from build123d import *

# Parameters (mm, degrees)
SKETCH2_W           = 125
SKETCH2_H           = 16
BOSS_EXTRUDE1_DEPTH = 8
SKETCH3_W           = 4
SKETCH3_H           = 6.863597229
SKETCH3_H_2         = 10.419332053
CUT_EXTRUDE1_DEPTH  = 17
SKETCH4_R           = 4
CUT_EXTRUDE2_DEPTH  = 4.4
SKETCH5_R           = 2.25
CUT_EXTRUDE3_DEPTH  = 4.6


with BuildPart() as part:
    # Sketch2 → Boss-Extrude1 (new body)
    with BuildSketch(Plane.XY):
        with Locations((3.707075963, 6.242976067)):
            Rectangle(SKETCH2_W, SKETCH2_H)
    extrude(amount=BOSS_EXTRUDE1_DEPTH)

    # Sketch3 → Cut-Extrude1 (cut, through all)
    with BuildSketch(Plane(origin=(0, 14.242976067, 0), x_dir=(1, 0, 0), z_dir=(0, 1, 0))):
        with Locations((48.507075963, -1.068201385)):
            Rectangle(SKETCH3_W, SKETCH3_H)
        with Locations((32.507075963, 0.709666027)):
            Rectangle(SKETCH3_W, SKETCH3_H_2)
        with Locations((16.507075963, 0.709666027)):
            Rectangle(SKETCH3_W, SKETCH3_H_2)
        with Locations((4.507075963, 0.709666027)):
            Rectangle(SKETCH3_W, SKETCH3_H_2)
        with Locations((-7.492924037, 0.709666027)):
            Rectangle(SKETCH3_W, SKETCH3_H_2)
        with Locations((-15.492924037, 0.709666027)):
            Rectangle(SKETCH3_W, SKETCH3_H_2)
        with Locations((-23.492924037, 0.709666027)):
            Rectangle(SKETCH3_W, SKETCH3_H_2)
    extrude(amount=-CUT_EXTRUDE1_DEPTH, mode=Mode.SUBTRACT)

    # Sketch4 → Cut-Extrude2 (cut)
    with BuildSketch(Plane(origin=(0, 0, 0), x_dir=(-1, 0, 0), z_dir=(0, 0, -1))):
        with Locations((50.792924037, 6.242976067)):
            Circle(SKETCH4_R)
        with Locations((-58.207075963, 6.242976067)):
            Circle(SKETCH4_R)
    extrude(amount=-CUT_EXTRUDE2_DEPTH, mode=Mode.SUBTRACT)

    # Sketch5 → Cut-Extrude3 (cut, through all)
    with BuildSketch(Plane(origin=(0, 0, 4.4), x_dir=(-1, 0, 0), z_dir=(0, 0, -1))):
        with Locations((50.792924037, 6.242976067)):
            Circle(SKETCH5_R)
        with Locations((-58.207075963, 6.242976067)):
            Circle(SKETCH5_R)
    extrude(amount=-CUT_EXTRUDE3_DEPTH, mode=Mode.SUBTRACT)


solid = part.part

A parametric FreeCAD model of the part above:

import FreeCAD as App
import Part
import Sketcher
from FreeCAD import Vector

doc = App.newDocument("Part")
body = doc.addObject("PartDesign::Body", "Body")

# Sketch on XY plane
sketch1 = body.newObject("Sketcher::SketchObject", "Sketch")
sketch1.AttachmentSupport = (doc.getObject("XY_Plane"), [""])
sketch1.MapMode = "FlatFace"
sketch1.addGeometry([
    Part.LineSegment(Vector(-59, 14, 0), Vector(-59, -2, 0)),
    Part.LineSegment(Vector(-59, -2, 0), Vector(66, -2, 0)),
    Part.LineSegment(Vector(66, -2, 0), Vector(66, 14, 0)),
    Part.LineSegment(Vector(66, 14, 0), Vector(-59, 14, 0)),
], False)
sketch1.addConstraint([
    Sketcher.Constraint("Coincident", 0, 2, 1, 1),
    Sketcher.Constraint("Coincident", 1, 2, 2, 1),
    Sketcher.Constraint("Coincident", 2, 2, 3, 1),
    Sketcher.Constraint("Coincident", 3, 2, 0, 1),
    Sketcher.Constraint("Vertical", 0),
    Sketcher.Constraint("Horizontal", 1),
    Sketcher.Constraint("Vertical", 2),
    Sketcher.Constraint("Horizontal", 3),
    Sketcher.Constraint("DistanceX", 1, 1, 1, 2, 125.0),
    Sketcher.Constraint("DistanceY", 0, 2, 0, 1, 16.0),
    Sketcher.Constraint("DistanceX", 0, 2, -1, 1, 58.792924),
    Sketcher.Constraint("DistanceY", 0, 2, -1, 1, 1.757024),
])
pad1 = body.newObject("PartDesign::Pad", "Pad")
pad1.Profile = sketch1
pad1.Length = 8

# Sketch on XZ plane
sketch2 = body.newObject("Sketcher::SketchObject", "Sketch001")
sketch2.AttachmentSupport = (doc.getObject("XZ_Plane"), [""])
sketch2.MapMode = "FlatFace"
sketch2.AttachmentOffset = App.Placement(Vector(0, 0, -14.242976), App.Rotation())
sketch2.addGeometry([
    Part.LineSegment(Vector(46.5, -2.4, 0), Vector(46.5, 4.5, 0)),  # 0
    Part.LineSegment(Vector(46.5, 4.5, 0), Vector(50.5, 4.5, 0)),  # 1
    Part.LineSegment(Vector(50.5, 4.5, 0), Vector(50.5, -2.4, 0)),  # 2
    Part.LineSegment(Vector(50.5, -2.4, 0), Vector(46.5, -2.4, 0)),  # 3
    Part.LineSegment(Vector(30.5, -5.9, 0), Vector(30.5, 4.5, 0)),  # 4
    Part.LineSegment(Vector(30.5, 4.5, 0), Vector(34.5, 4.5, 0)),  # 5
    Part.LineSegment(Vector(34.5, 4.5, 0), Vector(34.5, -5.9, 0)),  # 6
    Part.LineSegment(Vector(34.5, -5.9, 0), Vector(30.5, -5.9, 0)),  # 7
    Part.LineSegment(Vector(14.5, -5.9, 0), Vector(14.5, 4.5, 0)),  # 8
    Part.LineSegment(Vector(14.5, 4.5, 0), Vector(18.5, 4.5, 0)),  # 9
    Part.LineSegment(Vector(18.5, 4.5, 0), Vector(18.5, -5.9, 0)),  # 10
    Part.LineSegment(Vector(18.5, -5.9, 0), Vector(14.5, -5.9, 0)),  # 11
    Part.LineSegment(Vector(2.5, -5.9, 0), Vector(2.5, 4.5, 0)),  # 12
    Part.LineSegment(Vector(2.5, 4.5, 0), Vector(6.5, 4.5, 0)),  # 13
    Part.LineSegment(Vector(6.5, 4.5, 0), Vector(6.5, -5.9, 0)),  # 14
    Part.LineSegment(Vector(6.5, -5.9, 0), Vector(2.5, -5.9, 0)),  # 15
    Part.LineSegment(Vector(-9.5, -5.9, 0), Vector(-9.5, 4.5, 0)),  # 16
    Part.LineSegment(Vector(-9.5, 4.5, 0), Vector(-5.5, 4.5, 0)),  # 17
    Part.LineSegment(Vector(-5.5, 4.5, 0), Vector(-5.5, -5.9, 0)),  # 18
    Part.LineSegment(Vector(-5.5, -5.9, 0), Vector(-9.5, -5.9, 0)),  # 19
    Part.LineSegment(Vector(-17.5, -5.9, 0), Vector(-17.5, 4.5, 0)),  # 20
    Part.LineSegment(Vector(-17.5, 4.5, 0), Vector(-13.5, 4.5, 0)),  # 21
    Part.LineSegment(Vector(-13.5, 4.5, 0), Vector(-13.5, -5.9, 0)),  # 22
    Part.LineSegment(Vector(-13.5, -5.9, 0), Vector(-17.5, -5.9, 0)),  # 23
    Part.LineSegment(Vector(-25.5, -5.9, 0), Vector(-25.5, 4.5, 0)),  # 24
    Part.LineSegment(Vector(-25.5, 4.5, 0), Vector(-21.5, 4.5, 0)),  # 25
    Part.LineSegment(Vector(-21.5, 4.5, 0), Vector(-21.5, -5.9, 0)),  # 26
    Part.LineSegment(Vector(-21.5, -5.9, 0), Vector(-25.5, -5.9, 0)),  # 27
], False)
sketch2.addConstraint([
    Sketcher.Constraint("Coincident", 0, 2, 1, 1),
    Sketcher.Constraint("Coincident", 1, 2, 2, 1),
    Sketcher.Constraint("Coincident", 2, 2, 3, 1),
    Sketcher.Constraint("Coincident", 3, 2, 0, 1),
    Sketcher.Constraint("Coincident", 4, 2, 5, 1),
    Sketcher.Constraint("Coincident", 5, 2, 6, 1),
    Sketcher.Constraint("Coincident", 6, 2, 7, 1),
    Sketcher.Constraint("Coincident", 7, 2, 4, 1),
    Sketcher.Constraint("Coincident", 8, 2, 9, 1),
    Sketcher.Constraint("Coincident", 9, 2, 10, 1),
    Sketcher.Constraint("Coincident", 10, 2, 11, 1),
    Sketcher.Constraint("Coincident", 11, 2, 8, 1),
    Sketcher.Constraint("Coincident", 12, 2, 13, 1),
    Sketcher.Constraint("Coincident", 13, 2, 14, 1),
    Sketcher.Constraint("Coincident", 14, 2, 15, 1),
    Sketcher.Constraint("Coincident", 15, 2, 12, 1),
    Sketcher.Constraint("Coincident", 16, 2, 17, 1),
    Sketcher.Constraint("Coincident", 17, 2, 18, 1),
    Sketcher.Constraint("Coincident", 18, 2, 19, 1),
    Sketcher.Constraint("Coincident", 19, 2, 16, 1),
    Sketcher.Constraint("Coincident", 20, 2, 21, 1),
    Sketcher.Constraint("Coincident", 21, 2, 22, 1),
    Sketcher.Constraint("Coincident", 22, 2, 23, 1),
    Sketcher.Constraint("Coincident", 23, 2, 20, 1),
    Sketcher.Constraint("Coincident", 24, 2, 25, 1),
    Sketcher.Constraint("Coincident", 25, 2, 26, 1),
    Sketcher.Constraint("Coincident", 26, 2, 27, 1),
    Sketcher.Constraint("Coincident", 27, 2, 24, 1),
    Sketcher.Constraint("Vertical", 0),
    Sketcher.Constraint("Horizontal", 1),
    Sketcher.Constraint("Vertical", 2),
    Sketcher.Constraint("Horizontal", 3),
    Sketcher.Constraint("Vertical", 4),
    Sketcher.Constraint("Horizontal", 5),
    Sketcher.Constraint("Vertical", 6),
    Sketcher.Constraint("Horizontal", 7),
    Sketcher.Constraint("Vertical", 8),
    Sketcher.Constraint("Horizontal", 9),
    Sketcher.Constraint("Vertical", 10),
    Sketcher.Constraint("Horizontal", 11),
    Sketcher.Constraint("Vertical", 12),
    Sketcher.Constraint("Horizontal", 13),
    Sketcher.Constraint("Vertical", 14),
    Sketcher.Constraint("Horizontal", 15),
    Sketcher.Constraint("Vertical", 16),
    Sketcher.Constraint("Horizontal", 17),
    Sketcher.Constraint("Vertical", 18),
    Sketcher.Constraint("Horizontal", 19),
    Sketcher.Constraint("Vertical", 20),
    Sketcher.Constraint("Horizontal", 21),
    Sketcher.Constraint("Vertical", 22),
    Sketcher.Constraint("Horizontal", 23),
    Sketcher.Constraint("Vertical", 24),
    Sketcher.Constraint("Horizontal", 25),
    Sketcher.Constraint("Vertical", 26),
    Sketcher.Constraint("Horizontal", 27),
    Sketcher.Constraint("Horizontal", 1, 2, 4, 2),
    Sketcher.Constraint("Horizontal", 5, 2, 8, 2),
    Sketcher.Constraint("Horizontal", 7, 2, 10, 2),
    Sketcher.Constraint("Horizontal", 9, 2, 12, 2),
    Sketcher.Constraint("Horizontal", 11, 2, 14, 2),
    Sketcher.Constraint("Horizontal", 13, 2, 16, 2),
    Sketcher.Constraint("Horizontal", 15, 2, 18, 2),
    Sketcher.Constraint("Horizontal", 17, 2, 20, 2),
    Sketcher.Constraint("Horizontal", 19, 2, 22, 2),
    Sketcher.Constraint("Horizontal", 21, 2, 24, 2),
    Sketcher.Constraint("Horizontal", 23, 2, 26, 2),
    Sketcher.Constraint("Equal", 3, 5),
    Sketcher.Constraint("Equal", 7, 9),
    Sketcher.Constraint("Equal", 11, 13),
    Sketcher.Constraint("Equal", 15, 17),
    Sketcher.Constraint("Equal", 19, 21),
    Sketcher.Constraint("Equal", 23, 25),
    Sketcher.Constraint("DistanceX", 1, 1, 1, 2, 4.0),
    Sketcher.Constraint("DistanceX", 4, 2, 0, 2, 16.0),
    Sketcher.Constraint("DistanceX", 8, 2, 4, 2, 16.0),
    Sketcher.Constraint("DistanceX", 12, 2, 8, 2, 12.0),
    Sketcher.Constraint("DistanceX", 16, 2, 12, 2, 12.0),
    Sketcher.Constraint("DistanceX", 20, 2, 16, 2, 8.0),
    Sketcher.Constraint("DistanceX", 24, 2, 20, 2, 8.0),
    Sketcher.Constraint("DistanceY", -1, 1, 0, 2, 4.5),
    Sketcher.Constraint("DistanceY", 0, 1, 0, 2, 6.863597),
    Sketcher.Constraint("DistanceY", 4, 1, 4, 2, 10.419332),
    Sketcher.Constraint("DistanceX", -1, 1, 0, 2, 46.507076),
])
pocket1 = body.newObject("PartDesign::Pocket", "Pocket")
pocket1.Profile = sketch2
pocket1.Type = "ThroughAll"
pocket1.Reversed = True

# Sketch on XY plane
sketch3 = body.newObject("Sketcher::SketchObject", "Sketch002")
sketch3.AttachmentSupport = (doc.getObject("XY_Plane"), [""])
sketch3.MapMode = "FlatFace"
sketch3.addGeometry([
    Part.Circle(Vector(-50.8, 6.2, 0), Vector(0, 0, 1), 4),
    Part.Circle(Vector(58.2, 6.2, 0), Vector(0, 0, 1), 4),
], False)
sketch3.addConstraint([
    Sketcher.Constraint("Equal", 0, 1),
    Sketcher.Constraint("Horizontal", 0, 3, 1, 3),
    Sketcher.Constraint("Diameter", 0, 8.0),
    Sketcher.Constraint("DistanceX", 0, 3, 1, 3, 109.0),
    Sketcher.Constraint("DistanceX", 0, 3, -1, 1, 50.792924),
    Sketcher.Constraint("DistanceY", -1, 1, 0, 3, 6.242976),
])
pocket2 = body.newObject("PartDesign::Pocket", "Pocket001")
pocket2.Profile = sketch3
pocket2.Length = 4.4
pocket2.Reversed = True

# Sketch on XY plane
sketch4 = body.newObject("Sketcher::SketchObject", "Sketch003")
sketch4.AttachmentSupport = (doc.getObject("XY_Plane"), [""])
sketch4.MapMode = "FlatFace"
sketch4.AttachmentOffset = App.Placement(Vector(0, 0, 4.4), App.Rotation())
sketch4.addGeometry([
    Part.Circle(Vector(-50.8, 6.2, 0), Vector(0, 0, 1), 2.2),
    Part.Circle(Vector(58.2, 6.2, 0), Vector(0, 0, 1), 2.2),
], False)
sketch4.addConstraint([
    Sketcher.Constraint("Equal", 0, 1),
    Sketcher.Constraint("Horizontal", 0, 3, 1, 3),
    Sketcher.Constraint("Diameter", 0, 4.5),
    Sketcher.Constraint("DistanceX", 0, 3, 1, 3, 109.0),
    Sketcher.Constraint("DistanceX", 0, 3, -1, 1, 50.792924),
    Sketcher.Constraint("DistanceY", -1, 1, 0, 3, 6.242976),
])
pocket3 = body.newObject("PartDesign::Pocket", "Pocket002")
pocket3.Profile = sketch4
pocket3.Type = "ThroughAll"
pocket3.Reversed = True

doc.recompute()
